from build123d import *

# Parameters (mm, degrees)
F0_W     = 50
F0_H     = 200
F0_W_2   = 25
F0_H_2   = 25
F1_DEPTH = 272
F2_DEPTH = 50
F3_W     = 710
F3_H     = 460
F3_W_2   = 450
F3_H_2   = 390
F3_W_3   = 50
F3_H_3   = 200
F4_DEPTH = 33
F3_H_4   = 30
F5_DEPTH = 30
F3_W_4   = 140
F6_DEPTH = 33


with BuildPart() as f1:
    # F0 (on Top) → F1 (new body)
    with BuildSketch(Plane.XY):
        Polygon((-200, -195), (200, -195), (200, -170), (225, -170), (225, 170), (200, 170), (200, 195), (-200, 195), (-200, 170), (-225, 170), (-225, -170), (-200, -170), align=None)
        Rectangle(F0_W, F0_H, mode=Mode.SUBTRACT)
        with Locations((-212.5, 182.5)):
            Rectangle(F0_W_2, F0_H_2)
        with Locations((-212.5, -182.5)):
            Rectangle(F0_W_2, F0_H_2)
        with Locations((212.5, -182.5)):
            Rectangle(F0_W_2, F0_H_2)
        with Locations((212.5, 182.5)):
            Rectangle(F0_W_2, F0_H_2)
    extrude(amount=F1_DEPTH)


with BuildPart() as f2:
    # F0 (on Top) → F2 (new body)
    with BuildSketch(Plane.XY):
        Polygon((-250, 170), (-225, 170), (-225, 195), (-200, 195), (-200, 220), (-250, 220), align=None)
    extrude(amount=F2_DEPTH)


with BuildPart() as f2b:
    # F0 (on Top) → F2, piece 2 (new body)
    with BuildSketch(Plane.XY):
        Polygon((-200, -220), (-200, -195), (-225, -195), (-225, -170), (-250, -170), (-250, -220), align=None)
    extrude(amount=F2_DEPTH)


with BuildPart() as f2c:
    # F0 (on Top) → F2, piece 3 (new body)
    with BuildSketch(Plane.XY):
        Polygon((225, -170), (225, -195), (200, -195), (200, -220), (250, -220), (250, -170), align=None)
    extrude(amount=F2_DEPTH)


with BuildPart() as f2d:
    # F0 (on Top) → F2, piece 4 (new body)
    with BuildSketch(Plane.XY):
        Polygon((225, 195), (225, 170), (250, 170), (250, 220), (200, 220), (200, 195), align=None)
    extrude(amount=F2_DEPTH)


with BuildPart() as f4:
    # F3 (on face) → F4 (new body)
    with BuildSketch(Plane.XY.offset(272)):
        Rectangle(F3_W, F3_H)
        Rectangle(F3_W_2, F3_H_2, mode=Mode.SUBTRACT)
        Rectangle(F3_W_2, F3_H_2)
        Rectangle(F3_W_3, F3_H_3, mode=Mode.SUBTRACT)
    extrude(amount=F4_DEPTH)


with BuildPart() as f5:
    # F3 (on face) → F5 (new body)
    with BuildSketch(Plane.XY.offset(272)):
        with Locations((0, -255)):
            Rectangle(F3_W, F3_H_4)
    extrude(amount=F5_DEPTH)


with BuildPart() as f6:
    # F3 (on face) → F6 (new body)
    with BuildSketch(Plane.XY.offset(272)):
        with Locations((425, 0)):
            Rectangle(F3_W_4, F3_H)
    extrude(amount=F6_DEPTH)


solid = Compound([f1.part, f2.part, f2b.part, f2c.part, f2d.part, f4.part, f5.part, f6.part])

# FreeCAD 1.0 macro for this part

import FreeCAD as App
import Part
import Sketcher

V = App.Vector
Q = App.Units.Quantity

doc = App.newDocument("Part")
params = doc.addObject("Spreadsheet::Sheet", "Params")
for row, (alias, value) in enumerate([
    ("sketch1_width", "450 mm"),
    ("sketch1_width2", "50 mm"),
    ("sketch1_height", "390 mm"),
    ("sketch1_height2", "200 mm"),
    ("pad1_length", "272 mm"),
    ("sketch2_width", "25 mm"),
    ("pad2_length", "50 mm"),
    ("sketch3_width", "25 mm"),
    ("pad3_length", "50 mm"),
    ("sketch4_width", "25 mm"),
    ("pad4_length", "50 mm"),
    ("sketch5_width", "25 mm"),
    ("pad5_length", "50 mm"),
    ("sketch6_width", "710 mm"),
    ("sketch6_width2", "50 mm"),
    ("sketch6_height", "460 mm"),
    ("sketch6_height2", "200 mm"),
    ("pad6_length", "33 mm"),
    ("sketch7_width", "710 mm"),
    ("sketch7_height", "30 mm"),
    ("pad7_length", "30 mm"),
    ("sketch8_width", "140 mm"),
    ("sketch8_height", "460 mm"),
    ("pad8_length", "33 mm"),
], start=1):
    params.set(f"A{row}", alias)
    params.set(f"B{row}", "=" + value)
    params.setAlias(f"B{row}", alias)

body = doc.addObject("PartDesign::Body", "Body")

# Sketch on XY plane
sketch1 = body.newObject("Sketcher::SketchObject", "Sketch")
sketch1.AttachmentSupport = (doc.getObject("XY_Plane"), [""])
sketch1.MapMode = "FlatFace"
sketch1.addGeometry([
    Part.LineSegment(V(-225, 195, 0), V(-225, -195, 0)),  # 0
    Part.LineSegment(V(-225, -195, 0), V(225, -195, 0)),  # 1
    Part.LineSegment(V(225, -195, 0), V(225, 195, 0)),  # 2
    Part.LineSegment(V(225, 195, 0), V(-225, 195, 0)),  # 3
    Part.LineSegment(V(25, -100, 0), V(-25, -100, 0)),  # 4
    Part.LineSegment(V(-25, -100, 0), V(-25, 100, 0)),  # 5
    Part.LineSegment(V(-25, 100, 0), V(25, 100, 0)),  # 6
    Part.LineSegment(V(25, 100, 0), V(25, -100, 0)),  # 7
], False)
sketch1.addConstraint([
    Sketcher.Constraint("Coincident", 0, 2, 1, 1),
    Sketcher.Constraint("Coincident", 1, 2, 2, 1),
    Sketcher.Constraint("Coincident", 2, 2, 3, 1),
    Sketcher.Constraint("Coincident", 3, 2, 0, 1),
    Sketcher.Constraint("Coincident", 4, 2, 5, 1),
    Sketcher.Constraint("Coincident", 5, 2, 6, 1),
    Sketcher.Constraint("Coincident", 6, 2, 7, 1),
    Sketcher.Constraint("Coincident", 7, 2, 4, 1),
    Sketcher.Constraint("Vertical", 0),
    Sketcher.Constraint("Horizontal", 1),
    Sketcher.Constraint("Vertical", 2),
    Sketcher.Constraint("Horizontal", 3),
    Sketcher.Constraint("Horizontal", 4),
    Sketcher.Constraint("Vertical", 5),
    Sketcher.Constraint("Horizontal", 6),
    Sketcher.Constraint("Vertical", 7),
    Sketcher.Constraint("Symmetric", 0, 2, 2, 2, -1, 1),
    Sketcher.Constraint("Symmetric", 4, 2, 6, 2, -1, 1),
    Sketcher.Constraint("DistanceX", 1, 1, 1, 2, Q("450 mm")),
    Sketcher.Constraint("DistanceX", 4, 2, 4, 1, Q("50 mm")),
    Sketcher.Constraint("DistanceY", 0, 2, 0, 1, Q("390 mm")),
    Sketcher.Constraint("DistanceY", 5, 1, 5, 2, Q("200 mm")),
])
sketch1.setExpression("Constraints[18]", "Params.sketch1_width")
sketch1.setExpression("Constraints[19]", "Params.sketch1_width2")
sketch1.setExpression("Constraints[20]", "Params.sketch1_height")
sketch1.setExpression("Constraints[21]", "Params.sketch1_height2")
pad1 = body.newObject("PartDesign::Pad", "Pad")
pad1.Profile = sketch1
pad1.setExpression("Length", "Params.pad1_length")
body2 = doc.addObject("PartDesign::Body", "Body001")

# Sketch on XY plane
sketch2 = body2.newObject("Sketcher::SketchObject", "Sketch001")
sketch2.AttachmentSupport = (doc.getObject("XY_Plane001"), [""])
sketch2.MapMode = "FlatFace"
sketch2.addGeometry([
    Part.LineSegment(V(-250, 170, 0), V(-225, 170, 0)),  # 0
    Part.LineSegment(V(-225, 170, 0), V(-225, 195, 0)),  # 1
    Part.LineSegment(V(-225, 195, 0), V(-200, 195, 0)),  # 2
    Part.LineSegment(V(-200, 195, 0), V(-200, 220, 0)),  # 3
    Part.LineSegment(V(-200, 220, 0), V(-250, 220, 0)),  # 4
    Part.LineSegment(V(-250, 220, 0), V(-250, 170, 0)),  # 5
], False)
sketch2.addConstraint([
    Sketcher.Constraint("Coincident", 0, 2, 1, 1),
    Sketcher.Constraint("Coincident", 1, 2, 2, 1),
    Sketcher.Constraint("Coincident", 2, 2, 3, 1),
    Sketcher.Constraint("Coincident", 3, 2, 4, 1),
    Sketcher.Constraint("Coincident", 4, 2, 5, 1),
    Sketcher.Constraint("Coincident", 5, 2, 0, 1),
    Sketcher.Constraint("Horizontal", 0),
    Sketcher.Constraint("Vertical", 1),
    Sketcher.Constraint("Horizontal", 2),
    Sketcher.Constraint("Vertical", 3),
    Sketcher.Constraint("Horizontal", 4),
    Sketcher.Constraint("Vertical", 5),
    Sketcher.Constraint("Equal", 0, 2),
    Sketcher.Constraint("Equal", 2, 1),
    Sketcher.Constraint("Equal", 1, 3),
    Sketcher.Constraint("DistanceX", 0, 1, 0, 2, Q("25 mm")),
    Sketcher.Constraint("DistanceX", 0, 2, -1, 1, Q("225 mm")),
    Sketcher.Constraint("DistanceY", -1, 1, 0, 2, Q("170 mm")),
])
sketch2.setExpression("Constraints[15]", "Params.sketch2_width")
pad2 = body2.newObject("PartDesign::Pad", "Pad001")
pad2.Profile = sketch2
pad2.setExpression("Length", "Params.pad2_length")
body3 = doc.addObject("PartDesign::Body", "Body002")

# Sketch on XY plane
sketch3 = body3.newObject("Sketcher::SketchObject", "Sketch002")
sketch3.AttachmentSupport = (doc.getObject("XY_Plane002"), [""])
sketch3.MapMode = "FlatFace"
sketch3.addGeometry([
    Part.LineSegment(V(-200, -220, 0), V(-200, -195, 0)),  # 0
    Part.LineSegment(V(-200, -195, 0), V(-225, -195, 0)),  # 1
    Part.LineSegment(V(-225, -195, 0), V(-225, -170, 0)),  # 2
    Part.LineSegment(V(-225, -170, 0), V(-250, -170, 0)),  # 3
    Part.LineSegment(V(-250, -170, 0), V(-250, -220, 0)),  # 4
    Part.LineSegment(V(-250, -220, 0), V(-200, -220, 0)),  # 5
], False)
sketch3.addConstraint([
    Sketcher.Constraint("Coincident", 0, 2, 1, 1),
    Sketcher.Constraint("Coincident", 1, 2, 2, 1),
    Sketcher.Constraint("Coincident", 2, 2, 3, 1),
    Sketcher.Constraint("Coincident", 3, 2, 4, 1),
    Sketcher.Constraint("Coincident", 4, 2, 5, 1),
    Sketcher.Constraint("Coincident", 5, 2, 0, 1),
    Sketcher.Constraint("Vertical", 0),
    Sketcher.Constraint("Horizontal", 1),
    Sketcher.Constraint("Vertical", 2),
    Sketcher.Constraint("Horizontal", 3),
    Sketcher.Constraint("Vertical", 4),
    Sketcher.Constraint("Horizontal", 5),
    Sketcher.Constraint("Equal", 1, 3),
    Sketcher.Constraint("Equal", 3, 0),
    Sketcher.Constraint("Equal", 0, 2),
    Sketcher.Constraint("DistanceX", 1, 2, 1, 1, Q("25 mm")),
    Sketcher.Constraint("DistanceX", 0, 2, -1, 1, Q("200 mm")),
    Sketcher.Constraint("DistanceY", 0, 2, -1, 1, Q("195 mm")),
])
sketch3.setExpression("Constraints[15]", "Params.sketch3_width")
pad3 = body3.newObject("PartDesign::Pad", "Pad002")
pad3.Profile = sketch3
pad3.setExpression("Length", "Params.pad3_length")
body4 = doc.addObject("PartDesign::Body", "Body003")

# Sketch on XY plane
sketch4 = body4.newObject("Sketcher::SketchObject", "Sketch003")
sketch4.AttachmentSupport = (doc.getObject("XY_Plane003"), [""])
sketch4.MapMode = "FlatFace"
sketch4.addGeometry([
    Part.LineSegment(V(225, -170, 0), V(225, -195, 0)),  # 0
    Part.LineSegment(V(225, -195, 0), V(200, -195, 0)),  # 1
    Part.LineSegment(V(200, -195, 0), V(200, -220, 0)),  # 2
    Part.LineSegment(V(200, -220, 0), V(250, -220, 0)),  # 3
    Part.LineSegment(V(250, -220, 0), V(250, -170, 0)),  # 4
    Part.LineSegment(V(250, -170, 0), V(225, -170, 0)),  # 5
], False)
sketch4.addConstraint([
    Sketcher.Constraint("Coincident", 0, 2, 1, 1),
    Sketcher.Constraint("Coincident", 1, 2, 2, 1),
    Sketcher.Constraint("Coincident", 2, 2, 3, 1),
    Sketcher.Constraint("Coincident", 3, 2, 4, 1),
    Sketcher.Constraint("Coincident", 4, 2, 5, 1),
    Sketcher.Constraint("Coincident", 5, 2, 0, 1),
    Sketcher.Constraint("Vertical", 0),
    Sketcher.Constraint("Horizontal", 1),
    Sketcher.Constraint("Vertical", 2),
    Sketcher.Constraint("Horizontal", 3),
    Sketcher.Constraint("Vertical", 4),
    Sketcher.Constraint("Horizontal", 5),
    Sketcher.Constraint("Equal", 1, 5),
    Sketcher.Constraint("Equal", 5, 0),
    Sketcher.Constraint("Equal", 0, 2),
    Sketcher.Constraint("DistanceX", 1, 2, 1, 1, Q("25 mm")),
    Sketcher.Constraint("DistanceX", -1, 1, 0, 2, Q("225 mm")),
    Sketcher.Constraint("DistanceY", 0, 2, -1, 1, Q("195 mm")),
])
sketch4.setExpression("Constraints[15]", "Params.sketch4_width")
pad4 = body4.newObject("PartDesign::Pad", "Pad003")
pad4.Profile = sketch4
pad4.setExpression("Length", "Params.pad4_length")
body5 = doc.addObject("PartDesign::Body", "Body004")

# Sketch on XY plane
sketch5 = body5.newObject("Sketcher::SketchObject", "Sketch004")
sketch5.AttachmentSupport = (doc.getObject("XY_Plane004"), [""])
sketch5.MapMode = "FlatFace"
sketch5.addGeometry([
    Part.LineSegment(V(225, 195, 0), V(225, 170, 0)),  # 0
    Part.LineSegment(V(225, 170, 0), V(250, 170, 0)),  # 1
    Part.LineSegment(V(250, 170, 0), V(250, 220, 0)),  # 2
    Part.LineSegment(V(250, 220, 0), V(200, 220, 0)),  # 3
    Part.LineSegment(V(200, 220, 0), V(200, 195, 0)),  # 4
    Part.LineSegment(V(200, 195, 0), V(225, 195, 0)),  # 5
], False)
sketch5.addConstraint([
    Sketcher.Constraint("Coincident", 0, 2, 1, 1),
    Sketcher.Constraint("Coincident", 1, 2, 2, 1),
    Sketcher.Constraint("Coincident", 2, 2, 3, 1),
    Sketcher.Constraint("Coincident", 3, 2, 4, 1),
    Sketcher.Constraint("Coincident", 4, 2, 5, 1),
    Sketcher.Constraint("Coincident", 5, 2, 0, 1),
    Sketcher.Constraint("Vertical", 0),
    Sketcher.Constraint("Horizontal", 1),
    Sketcher.Constraint("Vertical", 2),
    Sketcher.Constraint("Horizontal", 3),
    Sketcher.Constraint("Vertical", 4),
    Sketcher.Constraint("Horizontal", 5),
    Sketcher.Constraint("Equal", 1, 5),
    Sketcher.Constraint("Equal", 5, 0),
    Sketcher.Constraint("Equal", 3, 2),
    Sketcher.Constraint("DistanceX", 1, 1, 1, 2, Q("25 mm")),
    Sketcher.Constraint("DistanceX", -1, 1, 0, 2, Q("225 mm")),
    Sketcher.Constraint("DistanceY", -1, 1, 0, 2, Q("170 mm")),
])
sketch5.setExpression("Constraints[15]", "Params.sketch5_width")
pad5 = body5.newObject("PartDesign::Pad", "Pad004")
pad5.Profile = sketch5
pad5.setExpression("Length", "Params.pad5_length")
body6 = doc.addObject("PartDesign::Body", "Body005")

# Sketch on XY plane
sketch6 = body6.newObject("Sketcher::SketchObject", "Sketch005")
sketch6.AttachmentSupport = (doc.getObject("XY_Plane005"), [""])
sketch6.MapMode = "FlatFace"
sketch6.AttachmentOffset = App.Placement(V(0, 0, 272), App.Rotation())
sketch6.addGeometry([
    Part.LineSegment(V(-355, 230, 0), V(-355, -230, 0)),  # 0
    Part.LineSegment(V(-355, -230, 0), V(355, -230, 0)),  # 1
    Part.LineSegment(V(355, -230, 0), V(355, 230, 0)),  # 2
    Part.LineSegment(V(355, 230, 0), V(-355, 230, 0)),  # 3
    Part.LineSegment(V(25, -100, 0), V(-25, -100, 0)),  # 4
    Part.LineSegment(V(-25, -100, 0), V(-25, 100, 0)),  # 5
    Part.LineSegment(V(-25, 100, 0), V(25, 100, 0)),  # 6
    Part.LineSegment(V(25, 100, 0), V(25, -100, 0)),  # 7
], False)
sketch6.addConstraint([
    Sketcher.Constraint("Coincident", 0, 2, 1, 1),
    Sketcher.Constraint("Coincident", 1, 2, 2, 1),
    Sketcher.Constraint("Coincident", 2, 2, 3, 1),
    Sketcher.Constraint("Coincident", 3, 2, 0, 1),
    Sketcher.Constraint("Coincident", 4, 2, 5, 1),
    Sketcher.Constraint("Coincident", 5, 2, 6, 1),
    Sketcher.Constraint("Coincident", 6, 2, 7, 1),
    Sketcher.Constraint("Coincident", 7, 2, 4, 1),
    Sketcher.Constraint("Vertical", 0),
    Sketcher.Constraint("Horizontal", 1),
    Sketcher.Constraint("Vertical", 2),
    Sketcher.Constraint("Horizontal", 3),
    Sketcher.Constraint("Horizontal", 4),
    Sketcher.Constraint("Vertical", 5),
    Sketcher.Constraint("Horizontal", 6),
    Sketcher.Constraint("Vertical", 7),
    Sketcher.Constraint("Symmetric", 0, 2, 2, 2, -1, 1),
    Sketcher.Constraint("Symmetric", 4, 2, 6, 2, -1, 1),
    Sketcher.Constraint("DistanceX", 1, 1, 1, 2, Q("710 mm")),
    Sketcher.Constraint("DistanceX", 4, 2, 4, 1, Q("50 mm")),
    Sketcher.Constraint("DistanceY", 0, 2, 0, 1, Q("460 mm")),
    Sketcher.Constraint("DistanceY", 5, 1, 5, 2, Q("200 mm")),
])
sketch6.setExpression("Constraints[18]", "Params.sketch6_width")
sketch6.setExpression("Constraints[19]", "Params.sketch6_width2")
sketch6.setExpression("Constraints[20]", "Params.sketch6_height")
sketch6.setExpression("Constraints[21]", "Params.sketch6_height2")
pad6 = body6.newObject("PartDesign::Pad", "Pad005")
pad6.Profile = sketch6
pad6.setExpression("Length", "Params.pad6_length")
body7 = doc.addObject("PartDesign::Body", "Body006")

# Sketch on XY plane
sketch7 = body7.newObject("Sketcher::SketchObject", "Sketch006")
sketch7.AttachmentSupport = (doc.getObject("XY_Plane006"), [""])
sketch7.MapMode = "FlatFace"
sketch7.AttachmentOffset = App.Placement(V(0, 0, 272), App.Rotation())
sketch7.addGeometry([
    Part.LineSegment(V(-355, -240, 0), V(-355, -270, 0)),
    Part.LineSegment(V(-355, -270, 0), V(355, -270, 0)),
    Part.LineSegment(V(355, -270, 0), V(355, -240, 0)),
    Part.LineSegment(V(355, -240, 0), V(-355, -240, 0)),
], False)
sketch7.addConstraint([
    Sketcher.Constraint("Coincident", 0, 2, 1, 1),
    Sketcher.Constraint("Coincident", 1, 2, 2, 1),
    Sketcher.Constraint("Coincident", 2, 2, 3, 1),
    Sketcher.Constraint("Coincident", 3, 2, 0, 1),
    Sketcher.Constraint("Vertical", 0),
    Sketcher.Constraint("Horizontal", 1),
    Sketcher.Constraint("Vertical", 2),
    Sketcher.Constraint("Horizontal", 3),
    Sketcher.Constraint("DistanceX", 1, 1, 1, 2, Q("710 mm")),
    Sketcher.Constraint("DistanceY", 0, 2, 0, 1, Q("30 mm")),
    Sketcher.Constraint("DistanceX", 0, 2, -1, 1, Q("355 mm")),
    Sketcher.Constraint("DistanceY", 0, 2, -1, 1, Q("270 mm")),
])
sketch7.setExpression("Constraints[8]", "Params.sketch7_width")
sketch7.setExpression("Constraints[9]", "Params.sketch7_height")
pad7 = body7.newObject("PartDesign::Pad", "Pad006")
pad7.Profile = sketch7
pad7.setExpression("Length", "Params.pad7_length")
body8 = doc.addObject("PartDesign::Body", "Body007")

# Sketch on XY plane
sketch8 = body8.newObject("Sketcher::SketchObject", "Sketch007")
sketch8.AttachmentSupport = (doc.getObject("XY_Plane007"), [""])
sketch8.MapMode = "FlatFace"
sketch8.AttachmentOffset = App.Placement(V(0, 0, 272), App.Rotation())
sketch8.addGeometry([
    Part.LineSegment(V(355, 230, 0), V(355, -230, 0)),
    Part.LineSegment(V(355, -230, 0), V(495, -230, 0)),
    Part.LineSegment(V(495, -230, 0), V(495, 230, 0)),
    Part.LineSegment(V(495, 230, 0), V(355, 230, 0)),
], False)
sketch8.addConstraint([
    Sketcher.Constraint("Coincident", 0, 2, 1, 1),
    Sketcher.Constraint("Coincident", 1, 2, 2, 1),
    Sketcher.Constraint("Coincident", 2, 2, 3, 1),
    Sketcher.Constraint("Coincident", 3, 2, 0, 1),
    Sketcher.Constraint("Vertical", 0),
    Sketcher.Constraint("Horizontal", 1),
    Sketcher.Constraint("Vertical", 2),
    Sketcher.Constraint("Horizontal", 3),
    Sketcher.Constraint("DistanceX", 1, 1, 1, 2, Q("140 mm")),
    Sketcher.Constraint("DistanceY", 0, 2, 0, 1, Q("460 mm")),
    Sketcher.Constraint("DistanceX", -1, 1, 0, 2, Q("355 mm")),
    Sketcher.Constraint("DistanceY", 0, 2, -1, 1, Q("230 mm")),
])
sketch8.setExpression("Constraints[8]", "Params.sketch8_width")
sketch8.setExpression("Constraints[9]", "Params.sketch8_height")
pad8 = body8.newObject("PartDesign::Pad", "Pad007")
pad8.Profile = sketch8
pad8.setExpression("Length", "Params.pad8_length")

doc.recompute()
